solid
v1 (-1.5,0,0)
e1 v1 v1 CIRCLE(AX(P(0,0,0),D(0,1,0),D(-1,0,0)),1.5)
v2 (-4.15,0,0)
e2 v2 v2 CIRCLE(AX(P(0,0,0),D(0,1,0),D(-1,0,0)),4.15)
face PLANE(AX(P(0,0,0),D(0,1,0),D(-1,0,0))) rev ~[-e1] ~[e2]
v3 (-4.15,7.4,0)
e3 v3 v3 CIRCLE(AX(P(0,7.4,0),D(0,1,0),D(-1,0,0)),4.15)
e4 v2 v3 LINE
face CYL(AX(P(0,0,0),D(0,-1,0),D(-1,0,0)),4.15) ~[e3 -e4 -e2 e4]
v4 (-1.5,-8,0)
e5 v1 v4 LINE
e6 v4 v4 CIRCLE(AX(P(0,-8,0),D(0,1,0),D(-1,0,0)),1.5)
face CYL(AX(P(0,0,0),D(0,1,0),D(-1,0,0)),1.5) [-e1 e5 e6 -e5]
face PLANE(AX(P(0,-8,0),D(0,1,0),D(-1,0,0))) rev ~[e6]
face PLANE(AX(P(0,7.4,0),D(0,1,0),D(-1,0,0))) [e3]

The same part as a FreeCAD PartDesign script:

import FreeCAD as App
import Part
import Sketcher
Q = App.Units.Quantity

doc = App.newDocument("Part")
params = doc.addObject("Spreadsheet::Sheet", "Params")
for row, (alias, value) in enumerate([
    ("sketch1_diameter", "8.3 mm"),
    ("pad1_length", "7.4 mm"),
    ("sketch2_diameter", "3 mm"),
    ("pad2_length", "8 mm"),
], start=1):
    params.set(f"A{row}", alias)
    params.set(f"B{row}", "=" + value)
    params.setAlias(f"B{row}", alias)

body = doc.addObject("PartDesign::Body", "Body")

sketch1 = doc.addObject("Sketcher::SketchObject", "Sketch")
body.addObject(sketch1)
sketch1.AttachmentSupport = (doc.XZ_Plane, [""])
sketch1.MapMode = "FlatFace"
sketch1.addGeometry(Part.Circle(App.Vector(0, 0, 0), App.Vector(0, 0, 1), 4.15), False)
sketch1.addConstraint([
    Sketcher.Constraint("Coincident", 0, 3, -1, 1),
    Sketcher.Constraint("Diameter", 0, Q("8.3 mm")),
])
sketch1.setExpression("Constraints[1]", "Params.sketch1_diameter")
pad1 = doc.addObject("PartDesign::Pad", "Pad")
body.addObject(pad1)
pad1.Profile = sketch1
pad1.setExpression("Length", "Params.pad1_length")
pad1.Reversed = True

sketch2 = doc.addObject("Sketcher::SketchObject", "Sketch001")
body.addObject(sketch2)
sketch2.AttachmentSupport = (doc.XZ_Plane, [""])
sketch2.MapMode = "FlatFace"
sketch2.addGeometry(Part.Circle(App.Vector(0, 0, 0), App.Vector(0, 0, 1), 1.5), False)
sketch2.addConstraint([
    Sketcher.Constraint("Coincident", 0, 3, -1, 1),
    Sketcher.Constraint("Diameter", 0, Q("3 mm")),
])
sketch2.setExpression("Constraints[1]", "Params.sketch2_diameter")
pad2 = doc.addObject("PartDesign::Pad", "Pad001")
body.addObject(pad2)
pad2.Profile = sketch2
pad2.setExpression("Length", "Params.pad2_length")

doc.recompute()
